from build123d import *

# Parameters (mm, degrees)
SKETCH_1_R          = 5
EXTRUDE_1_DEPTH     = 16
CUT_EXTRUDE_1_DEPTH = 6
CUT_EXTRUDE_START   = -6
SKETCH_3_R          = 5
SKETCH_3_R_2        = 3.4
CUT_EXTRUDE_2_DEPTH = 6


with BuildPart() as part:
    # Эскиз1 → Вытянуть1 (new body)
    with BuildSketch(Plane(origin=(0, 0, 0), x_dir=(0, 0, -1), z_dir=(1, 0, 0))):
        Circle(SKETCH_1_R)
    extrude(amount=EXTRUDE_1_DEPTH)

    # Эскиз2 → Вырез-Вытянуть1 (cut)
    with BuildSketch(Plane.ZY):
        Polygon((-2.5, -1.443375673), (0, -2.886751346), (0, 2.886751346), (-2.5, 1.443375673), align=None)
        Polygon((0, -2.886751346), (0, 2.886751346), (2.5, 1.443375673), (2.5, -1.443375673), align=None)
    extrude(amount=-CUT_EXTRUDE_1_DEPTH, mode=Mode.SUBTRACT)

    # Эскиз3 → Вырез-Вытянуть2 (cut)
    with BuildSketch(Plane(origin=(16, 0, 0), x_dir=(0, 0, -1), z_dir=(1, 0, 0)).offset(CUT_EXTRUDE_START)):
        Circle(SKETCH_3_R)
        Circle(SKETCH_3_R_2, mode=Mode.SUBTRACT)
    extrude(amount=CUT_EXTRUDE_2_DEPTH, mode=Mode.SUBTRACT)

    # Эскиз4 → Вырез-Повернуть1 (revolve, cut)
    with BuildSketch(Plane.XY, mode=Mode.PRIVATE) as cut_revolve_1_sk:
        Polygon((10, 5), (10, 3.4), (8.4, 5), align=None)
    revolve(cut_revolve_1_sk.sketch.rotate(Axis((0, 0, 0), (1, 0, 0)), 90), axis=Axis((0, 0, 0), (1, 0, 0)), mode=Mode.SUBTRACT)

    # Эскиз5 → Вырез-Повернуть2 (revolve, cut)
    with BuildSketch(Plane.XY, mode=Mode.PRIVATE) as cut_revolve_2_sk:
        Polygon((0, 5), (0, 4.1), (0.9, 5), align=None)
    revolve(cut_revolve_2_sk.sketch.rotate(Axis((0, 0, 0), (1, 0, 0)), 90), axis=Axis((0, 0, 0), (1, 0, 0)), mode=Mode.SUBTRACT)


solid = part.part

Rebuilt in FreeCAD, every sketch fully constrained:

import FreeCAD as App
import Part
import Sketcher
from FreeCAD import Vector
Q = App.Units.Quantity


def add_polygon(sketch, points):
    """Adds a closed chain of lines whose ends are joined by coincident constraints."""
    first, n = sketch.GeometryCount, len(points)
    for a, b in zip(points, points[1:] + points[:1]):
        sketch.addGeometry(Part.LineSegment(App.Vector(*a, 0), App.Vector(*b, 0)), False)
    for i in range(n):
        sketch.addConstraint(Sketcher.Constraint("Coincident", first + i, 2, first + (i + 1) % n, 1))

doc = App.newDocument("Part")
body = doc.addObject("PartDesign::Body", "Body")

sketch1 = doc.addObject("Sketcher::SketchObject", "Sketch")
body.addObject(sketch1)
sketch1.AttachmentSupport = (doc.YZ_Plane, [""])
sketch1.MapMode = "FlatFace"
sketch1.addGeometry(Part.Circle(Vector(0, 0, 0), Vector(0, 0, 1), 5), False)
sketch1.addConstraint(Sketcher.Constraint("Coincident", 0, 3, -1, 1))
sketch1.addConstraint(Sketcher.Constraint("Diameter", 0, Q("10 mm")))
pad1 = doc.addObject("PartDesign::Pad", "Pad")
body.addObject(pad1)
pad1.Profile = sketch1
pad1.Length = 16

sketch2 = doc.addObject("Sketcher::SketchObject", "Sketch001")
body.addObject(sketch2)
sketch2.AttachmentSupport = (doc.YZ_Plane, [""])
sketch2.MapMode = "FlatFace"
add_polygon(sketch2, [(-1.4, -2.5), (-2.9, 0), (-1.4, 2.5), (1.4, 2.5), (2.9, 0), (1.4, -2.5)])
sketch2.addConstraint(Sketcher.Constraint("Horizontal", 2))
sketch2.addConstraint(Sketcher.Constraint("Horizontal", 5))
sketch2.addConstraint(Sketcher.Constraint("Symmetric", 0, 2, 3, 2, -1, 1))
sketch2.addConstraint(Sketcher.Constraint("Symmetric", 1, 2, 4, 2, -1, 1))
sketch2.addConstraint(Sketcher.Constraint("PointOnObject", 0, 2, -1))
sketch2.addConstraint(Sketcher.Constraint("Parallel", 0, 3))
sketch2.addConstraint(Sketcher.Constraint("Vertical", 2, 2, 4, 2))
sketch2.addConstraint(Sketcher.Constraint("Angle", 0, Q("120 deg")))
sketch2.addConstraint(Sketcher.Constraint("DistanceY", 4, 2, 2, 2, Q("5 mm")))
sketch2.addConstraint(Sketcher.Constraint("DistanceX", 2, 1, 2, 2, Q("2.886751 mm")))
pocket1 = doc.addObject("PartDesign::Pocket", "Pocket")
body.addObject(pocket1)
pocket1.Profile = sketch2
pocket1.Length = 6
pocket1.Reversed = True

sketch3 = doc.addObject("Sketcher::SketchObject", "Sketch002")
body.addObject(sketch3)
sketch3.AttachmentSupport = (doc.YZ_Plane, [""])
sketch3.MapMode = "FlatFace"
sketch3.AttachmentOffset = App.Placement(Vector(0, 0, 10), App.Rotation())
sketch3.addGeometry(Part.Circle(Vector(0, 0, 0), Vector(0, 0, 1), 5), False)
sketch3.addGeometry(Part.Circle(Vector(0, 0, 0), Vector(0, 0, 1), 3.4), False)
sketch3.addConstraint(Sketcher.Constraint("Coincident", 0, 3, -1, 1))
sketch3.addConstraint(Sketcher.Constraint("Coincident", 1, 3, -1, 1))
sketch3.addConstraint(Sketcher.Constraint("Diameter", 0, Q("10 mm")))
sketch3.addConstraint(Sketcher.Constraint("Diameter", 1, Q("6.8 mm")))
pocket2 = doc.addObject("PartDesign::Pocket", "Pocket001")
body.addObject(pocket2)
pocket2.Profile = sketch3
pocket2.Length = 6
pocket2.Reversed = True

sketch4 = doc.addObject("Sketcher::SketchObject", "Sketch003")
body.addObject(sketch4)
sketch4.AttachmentSupport = (doc.XY_Plane, [""])
sketch4.MapMode = "FlatFace"
add_polygon(sketch4, [(10, 3.4), (10, 5), (8.4, 5)])
sketch4.addConstraint(Sketcher.Constraint("Vertical", 0))
sketch4.addConstraint(Sketcher.Constraint("Horizontal", 1))
sketch4.addConstraint(Sketcher.Constraint("Equal", 1, 0))
sketch4.addConstraint(Sketcher.Constraint("DistanceX", 1, 2, 1, 1, Q("1.6 mm")))
sketch4.addConstraint(Sketcher.Constraint("DistanceX", -1, 1, 0, 2, Q("10 mm")))
sketch4.addConstraint(Sketcher.Constraint("DistanceY", -1, 1, 0, 2, Q("5 mm")))
groove = doc.addObject("PartDesign::Groove", "Groove")
body.addObject(groove)
groove.Profile = sketch4
groove.ReferenceAxis = (sketch4, ["H_Axis"])
groove.Angle = 360

sketch5 = doc.addObject("Sketcher::SketchObject", "Sketch004")
body.addObject(sketch5)
sketch5.AttachmentSupport = (doc.XY_Plane, [""])
sketch5.MapMode = "FlatFace"
add_polygon(sketch5, [(0, 5), (0, 4.1), (0.9, 5)])
sketch5.addConstraint(Sketcher.Constraint("Vertical", 0))
sketch5.addConstraint(Sketcher.Constraint("Horizontal", 2))
sketch5.addConstraint(Sketcher.Constraint("PointOnObject", 0, 2, -2))
sketch5.addConstraint(Sketcher.Constraint("Equal", 2, 0))
sketch5.addConstraint(Sketcher.Constraint("DistanceX", 2, 2, 2, 1, Q("0.9 mm")))
sketch5.addConstraint(Sketcher.Constraint("DistanceY", -1, 1, 1, 2, Q("5 mm")))
groove2 = doc.addObject("PartDesign::Groove", "Groove001")
body.addObject(groove2)
groove2.Profile = sketch5
groove2.ReferenceAxis = (sketch5, ["H_Axis"])
groove2.Angle = 360

doc.recompute()
